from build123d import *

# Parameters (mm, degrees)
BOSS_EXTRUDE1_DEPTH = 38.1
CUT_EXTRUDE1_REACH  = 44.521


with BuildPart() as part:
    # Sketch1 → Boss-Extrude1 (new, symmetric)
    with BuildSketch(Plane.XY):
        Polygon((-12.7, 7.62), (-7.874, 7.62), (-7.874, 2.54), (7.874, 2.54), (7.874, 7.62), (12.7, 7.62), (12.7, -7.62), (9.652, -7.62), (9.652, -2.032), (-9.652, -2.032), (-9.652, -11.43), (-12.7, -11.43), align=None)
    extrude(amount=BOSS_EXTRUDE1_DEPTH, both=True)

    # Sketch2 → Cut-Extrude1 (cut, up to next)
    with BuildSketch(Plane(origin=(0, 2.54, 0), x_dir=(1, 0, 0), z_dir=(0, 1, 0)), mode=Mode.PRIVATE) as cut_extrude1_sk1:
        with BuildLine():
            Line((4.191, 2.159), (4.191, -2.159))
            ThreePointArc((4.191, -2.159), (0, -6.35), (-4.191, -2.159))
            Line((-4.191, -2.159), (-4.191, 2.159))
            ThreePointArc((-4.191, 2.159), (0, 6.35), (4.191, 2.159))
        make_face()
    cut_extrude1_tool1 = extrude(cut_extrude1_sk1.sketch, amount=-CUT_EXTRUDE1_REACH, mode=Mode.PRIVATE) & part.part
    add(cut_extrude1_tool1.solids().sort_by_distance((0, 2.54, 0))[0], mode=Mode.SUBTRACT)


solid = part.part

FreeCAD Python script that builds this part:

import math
import FreeCAD as App
import Part
import Sketcher

V = App.Vector
Q = App.Units.Quantity


def add_polygon(sketch, points):
    """Adds a closed chain of lines whose ends are joined by coincident constraints."""
    first, n = sketch.GeometryCount, len(points)
    for a, b in zip(points, points[1:] + points[:1]):
        sketch.addGeometry(Part.LineSegment(App.Vector(*a, 0), App.Vector(*b, 0)), False)
    for i in range(n):
        sketch.addConstraint(Sketcher.Constraint("Coincident", first + i, 2, first + (i + 1) % n, 1))

doc = App.newDocument("Part")
params = doc.addObject("Spreadsheet::Sheet", "Params")
for row, (alias, value) in enumerate([
    ("sketch1_height", "0.6 in"),
    ("sketch1_height2", "0.2 in"),
    ("sketch1_width", "0.19 in"),
    ("sketch1_width2", "0.12 in"),
    ("sketch1_height3", "0.75 in"),
    ("pad1_length", "3 in"),
    ("sketch2_radius", "0.165 in"),
    ("sketch2_height", "0.17 in"),
], start=1):
    params.set(f"A{row}", alias)
    params.set(f"B{row}", "=" + value)
    params.setAlias(f"B{row}", alias)

body = doc.addObject("PartDesign::Body", "Body")

# Sketch on XY plane
sketch1 = body.newObject("Sketcher::SketchObject", "Sketch")
sketch1.AttachmentSupport = (doc.getObject("XY_Plane"), [""])
sketch1.MapMode = "FlatFace"
add_polygon(sketch1, [(-7.874, 7.62), (-12.7, 7.62), (-12.7, -11.43), (-9.652, -11.43), (-9.652, -2.032), (9.652, -2.032), (9.652, -7.62), (12.7, -7.62), (12.7, 7.62), (7.874, 7.62), (7.874, 2.54), (-7.874, 2.54)])  # lines 0-11
sketch1.addConstraint([
    Sketcher.Constraint("Horizontal", 0),
    Sketcher.Constraint("Vertical", 1),
    Sketcher.Constraint("Horizontal", 2),
    Sketcher.Constraint("Vertical", 3),
    Sketcher.Constraint("Horizontal", 4),
    Sketcher.Constraint("Vertical", 5),
    Sketcher.Constraint("Horizontal", 6),
    Sketcher.Constraint("Vertical", 7),
    Sketcher.Constraint("Horizontal", 8),
    Sketcher.Constraint("Vertical", 9),
    Sketcher.Constraint("Horizontal", 10),
    Sketcher.Constraint("Vertical", 11),
    Sketcher.Constraint("Symmetric", 0, 2, 6, 2, -1, 1),
    Sketcher.Constraint("Symmetric", 8, 2, 11, 2, -2),
    Sketcher.Constraint("Equal", 2, 6),
    Sketcher.Constraint("DistanceY", 7, 1, 7, 2, Q("0.6 in")),
    Sketcher.Constraint("DistanceY", 9, 2, 9, 1, Q("0.2 in")),
    Sketcher.Constraint("DistanceX", 1, 2, 6, 2, Q("1 in")),
    Sketcher.Constraint("DistanceX", 0, 2, 0, 1, Q("0.19 in")),
    Sketcher.Constraint("DistanceX", 2, 1, 2, 2, Q("0.12 in")),
    Sketcher.Constraint("DistanceY", 1, 2, 1, 1, Q("0.75 in")),
    Sketcher.Constraint("DistanceY", 3, 1, 3, 2, Q("0.37 in")),
])
sketch1.setExpression("Constraints[27]", "Params.sketch1_height")
sketch1.setExpression("Constraints[28]", "Params.sketch1_height2")
sketch1.setExpression("Constraints[30]", "Params.sketch1_width")
sketch1.setExpression("Constraints[31]", "Params.sketch1_width2")
sketch1.setExpression("Constraints[32]", "Params.sketch1_height3")
pad1 = body.newObject("PartDesign::Pad", "Pad")
pad1.Profile = sketch1
pad1.setExpression("Length", "Params.pad1_length")
pad1.Midplane = True

# Sketch on XZ plane
sketch2 = body.newObject("Sketcher::SketchObject", "Sketch001")
sketch2.AttachmentSupport = (doc.getObject("XZ_Plane"), [""])
sketch2.MapMode = "FlatFace"
sketch2.AttachmentOffset = App.Placement(V(0, 0, -0.1 * 25.4), App.Rotation())
sketch2.addGeometry([
    Part.LineSegment(V(4.191, 2.159, 0), V(4.191, -2.159, 0)),
    Part.ArcOfCircle(Part.Circle(V(0, -2.159, 0), V(0, 0, 1), 4.191), math.radians(180), math.radians(360)),
    Part.LineSegment(V(-4.191, -2.159, 0), V(-4.191, 2.159, 0)),
    Part.ArcOfCircle(Part.Circle(V(0, 2.159, 0), V(0, 0, 1), 4.191), math.radians(0), math.radians(180)),
], False)
sketch2.addConstraint([
    Sketcher.Constraint("Tangent", 0, 2, 1, 2),
    Sketcher.Constraint("Tangent", 1, 1, 2, 1),
    Sketcher.Constraint("Tangent", 2, 2, 3, 2),
    Sketcher.Constraint("Tangent", 3, 1, 0, 1),
    Sketcher.Constraint("Vertical", 0),
    Sketcher.Constraint("Vertical", 2),
    Sketcher.Constraint("Symmetric", 1, 3, 3, 3, -1, 1),
    Sketcher.Constraint("Radius", 1, Q("0.165 in")),
    Sketcher.Constraint("DistanceY", 0, 2, 0, 1, Q("0.17 in")),
])
sketch2.setExpression("Constraints[7]", "Params.sketch2_radius")
sketch2.setExpression("Constraints[8]", "Params.sketch2_height")
pocket1 = body.newObject("PartDesign::Pocket", "Pocket")
pocket1.Profile = sketch2
pocket1.Type = "UpToFirst"
pocket1.Reversed = True

doc.recompute()
